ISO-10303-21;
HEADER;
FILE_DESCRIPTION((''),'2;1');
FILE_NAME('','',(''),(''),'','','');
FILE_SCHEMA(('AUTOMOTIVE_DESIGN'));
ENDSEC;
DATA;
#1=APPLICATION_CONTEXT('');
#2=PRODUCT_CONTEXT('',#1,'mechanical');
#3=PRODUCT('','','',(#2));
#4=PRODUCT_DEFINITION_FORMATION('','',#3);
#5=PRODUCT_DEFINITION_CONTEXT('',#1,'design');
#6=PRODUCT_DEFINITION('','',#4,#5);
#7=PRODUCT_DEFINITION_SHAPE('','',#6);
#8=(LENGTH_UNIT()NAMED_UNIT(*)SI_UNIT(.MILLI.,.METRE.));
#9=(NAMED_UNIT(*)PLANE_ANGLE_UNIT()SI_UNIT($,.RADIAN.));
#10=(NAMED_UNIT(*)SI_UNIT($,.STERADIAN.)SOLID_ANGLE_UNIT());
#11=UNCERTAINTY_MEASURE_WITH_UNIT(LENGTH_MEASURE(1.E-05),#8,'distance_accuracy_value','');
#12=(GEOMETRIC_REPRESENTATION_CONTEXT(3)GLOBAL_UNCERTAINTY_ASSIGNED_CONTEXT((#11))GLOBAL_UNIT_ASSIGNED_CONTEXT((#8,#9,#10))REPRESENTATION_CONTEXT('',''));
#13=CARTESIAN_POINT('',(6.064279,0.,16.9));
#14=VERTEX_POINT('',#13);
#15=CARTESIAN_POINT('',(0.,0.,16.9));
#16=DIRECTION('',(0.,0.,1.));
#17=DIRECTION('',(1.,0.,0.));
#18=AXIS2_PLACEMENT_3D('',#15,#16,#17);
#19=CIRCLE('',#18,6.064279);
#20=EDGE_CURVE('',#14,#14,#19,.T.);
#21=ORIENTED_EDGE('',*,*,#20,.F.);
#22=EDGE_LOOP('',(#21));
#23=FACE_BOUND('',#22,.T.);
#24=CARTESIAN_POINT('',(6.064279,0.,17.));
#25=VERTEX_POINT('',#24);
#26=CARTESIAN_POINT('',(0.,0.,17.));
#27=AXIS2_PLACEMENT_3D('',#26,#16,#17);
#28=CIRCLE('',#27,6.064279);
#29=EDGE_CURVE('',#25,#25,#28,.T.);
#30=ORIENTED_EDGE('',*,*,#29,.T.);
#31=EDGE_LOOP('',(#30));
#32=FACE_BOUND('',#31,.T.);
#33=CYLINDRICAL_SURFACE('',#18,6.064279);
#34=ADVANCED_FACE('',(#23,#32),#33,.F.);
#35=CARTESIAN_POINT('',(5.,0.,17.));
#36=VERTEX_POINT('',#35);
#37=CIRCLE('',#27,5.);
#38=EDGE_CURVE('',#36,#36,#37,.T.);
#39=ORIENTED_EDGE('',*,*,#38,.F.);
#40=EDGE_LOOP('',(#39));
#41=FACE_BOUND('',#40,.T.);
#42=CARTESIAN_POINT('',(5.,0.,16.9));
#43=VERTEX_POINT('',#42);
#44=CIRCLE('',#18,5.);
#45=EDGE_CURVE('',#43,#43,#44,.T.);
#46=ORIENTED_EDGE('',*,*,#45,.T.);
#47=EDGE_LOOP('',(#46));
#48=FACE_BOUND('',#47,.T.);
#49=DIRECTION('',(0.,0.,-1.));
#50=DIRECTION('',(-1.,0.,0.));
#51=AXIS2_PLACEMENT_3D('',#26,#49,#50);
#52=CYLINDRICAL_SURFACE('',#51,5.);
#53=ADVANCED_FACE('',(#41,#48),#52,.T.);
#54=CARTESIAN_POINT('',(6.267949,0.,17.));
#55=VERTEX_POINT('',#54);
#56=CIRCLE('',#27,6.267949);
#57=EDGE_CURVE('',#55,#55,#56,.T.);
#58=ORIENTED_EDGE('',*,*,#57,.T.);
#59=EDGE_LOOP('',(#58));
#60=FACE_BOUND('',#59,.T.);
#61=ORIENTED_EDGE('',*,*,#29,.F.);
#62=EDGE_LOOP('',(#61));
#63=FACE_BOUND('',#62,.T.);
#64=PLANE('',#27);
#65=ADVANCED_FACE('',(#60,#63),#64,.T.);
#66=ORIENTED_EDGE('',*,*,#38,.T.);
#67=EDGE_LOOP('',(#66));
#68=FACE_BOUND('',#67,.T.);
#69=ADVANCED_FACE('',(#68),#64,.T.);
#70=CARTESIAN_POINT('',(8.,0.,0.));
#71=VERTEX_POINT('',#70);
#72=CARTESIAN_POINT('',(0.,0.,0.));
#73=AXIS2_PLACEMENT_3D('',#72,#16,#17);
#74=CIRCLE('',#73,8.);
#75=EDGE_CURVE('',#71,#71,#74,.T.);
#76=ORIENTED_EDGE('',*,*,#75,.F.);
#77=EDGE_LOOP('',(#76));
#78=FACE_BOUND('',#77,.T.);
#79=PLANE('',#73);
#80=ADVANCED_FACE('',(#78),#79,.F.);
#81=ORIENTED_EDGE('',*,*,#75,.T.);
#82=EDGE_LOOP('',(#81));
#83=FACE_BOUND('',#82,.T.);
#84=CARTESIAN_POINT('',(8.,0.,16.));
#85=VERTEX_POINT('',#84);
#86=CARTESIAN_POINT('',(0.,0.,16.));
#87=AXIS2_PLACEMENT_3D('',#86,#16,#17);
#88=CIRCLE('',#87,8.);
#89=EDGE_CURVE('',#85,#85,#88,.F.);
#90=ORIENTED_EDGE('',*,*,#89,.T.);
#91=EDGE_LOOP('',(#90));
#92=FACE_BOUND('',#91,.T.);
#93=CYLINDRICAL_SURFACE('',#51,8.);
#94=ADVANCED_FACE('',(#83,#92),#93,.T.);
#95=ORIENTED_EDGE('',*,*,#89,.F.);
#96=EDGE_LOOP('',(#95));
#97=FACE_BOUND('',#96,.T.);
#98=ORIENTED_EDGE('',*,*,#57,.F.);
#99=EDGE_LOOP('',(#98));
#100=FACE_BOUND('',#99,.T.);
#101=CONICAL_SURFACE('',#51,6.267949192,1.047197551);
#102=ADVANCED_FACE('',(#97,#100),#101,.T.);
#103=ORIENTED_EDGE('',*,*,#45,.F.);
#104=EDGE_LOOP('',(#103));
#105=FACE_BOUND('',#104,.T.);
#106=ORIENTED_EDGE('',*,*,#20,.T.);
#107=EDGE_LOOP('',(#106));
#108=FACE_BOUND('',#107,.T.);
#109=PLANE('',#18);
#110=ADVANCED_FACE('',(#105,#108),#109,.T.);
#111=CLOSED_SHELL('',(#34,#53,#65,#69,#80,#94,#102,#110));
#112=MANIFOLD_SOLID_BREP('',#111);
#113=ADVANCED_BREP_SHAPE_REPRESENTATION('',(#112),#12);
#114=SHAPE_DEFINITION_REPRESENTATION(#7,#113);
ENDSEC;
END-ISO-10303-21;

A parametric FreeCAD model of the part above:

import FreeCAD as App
import Part
import Sketcher
from FreeCAD import Vector
Q = App.Units.Quantity


def edges_at(feature, points):
    """Names of the edges that pass closest to the given points."""
    edges = feature.Shape.Edges
    near = lambda p: min(range(len(edges)), key=lambda i: edges[i].distToShape(Part.Vertex(*p))[0])
    return sorted({f"Edge{near(p) + 1}" for p in points})

doc = App.newDocument("Part")
params = doc.addObject("Spreadsheet::Sheet", "Params")
for row, (alias, value) in enumerate([
    ("sketch1_diameter", "16 mm"),
    ("pad1_length", "17 mm"),
    ("chamfer_size", "1 mm"),
    ("chamfer_size2", "1.732051 mm"),
    ("pocket1_length", "0.1 mm"),
    ("sketch3_diameter", "10 mm"),
    ("pad2_length", "0.1 mm"),
], start=1):
    params.set(f"A{row}", alias)
    params.set(f"B{row}", "=" + value)
    params.setAlias(f"B{row}", alias)

body = doc.addObject("PartDesign::Body", "Body")

sketch1 = body.newObject("Sketcher::SketchObject", "Sketch")
sketch1.AttachmentSupport = (doc.getObject("XY_Plane"), [""])
sketch1.MapMode = "FlatFace"
sketch1.addGeometry(Part.Circle(Vector(0, 0, 0), Vector(0, 0, 1), 8), False)
sketch1.addConstraint([
    Sketcher.Constraint("Coincident", 0, 3, -1, 1),
    Sketcher.Constraint("Diameter", 0, Q("16 mm")),
])
sketch1.setExpression("Constraints[1]", "Params.sketch1_diameter")
pad1 = body.newObject("PartDesign::Pad", "Pad")
pad1.Profile = sketch1
pad1.setExpression("Length", "Params.pad1_length")
doc.recompute()

chamfer = body.newObject("PartDesign::Chamfer", "Chamfer")
chamfer.Base = (pad1, edges_at(pad1, [(-8, 0, 17)]))
chamfer.ChamferType = "Two distances"
chamfer.setExpression("Size", "Params.chamfer_size")
chamfer.setExpression("Size2", "Params.chamfer_size2")

sketch2 = body.newObject("Sketcher::SketchObject", "Sketch001")
sketch2.AttachmentSupport = (doc.getObject("XY_Plane"), [""])
sketch2.MapMode = "FlatFace"
sketch2.AttachmentOffset = App.Placement(Vector(0, 0, 17), App.Rotation())
sketch2.addGeometry(Part.Circle(Vector(0, 0, 0), Vector(0, 0, 1), 6), False)
sketch2.addConstraint([
    Sketcher.Constraint("Coincident", 0, 3, -1, 1),
    Sketcher.Constraint("Diameter", 0, Q("12.128558 mm")),
])
pocket1 = body.newObject("PartDesign::Pocket", "Pocket")
pocket1.Profile = sketch2
pocket1.setExpression("Length", "Params.pocket1_length")

sketch3 = body.newObject("Sketcher::SketchObject", "Sketch002")
sketch3.AttachmentSupport = (doc.getObject("XY_Plane"), [""])
sketch3.MapMode = "FlatFace"
sketch3.AttachmentOffset = App.Placement(Vector(0, 0, 16.9), App.Rotation())
sketch3.addGeometry(Part.Circle(Vector(0, 0, 0), Vector(0, 0, 1), 5), False)
sketch3.addConstraint([
    Sketcher.Constraint("Coincident", 0, 3, -1, 1),
    Sketcher.Constraint("Diameter", 0, Q("10 mm")),
])
sketch3.setExpression("Constraints[1]", "Params.sketch3_diameter")
pad2 = body.newObject("PartDesign::Pad", "Pad001")
pad2.Profile = sketch3
pad2.setExpression("Length", "Params.pad2_length")

doc.recompute()
